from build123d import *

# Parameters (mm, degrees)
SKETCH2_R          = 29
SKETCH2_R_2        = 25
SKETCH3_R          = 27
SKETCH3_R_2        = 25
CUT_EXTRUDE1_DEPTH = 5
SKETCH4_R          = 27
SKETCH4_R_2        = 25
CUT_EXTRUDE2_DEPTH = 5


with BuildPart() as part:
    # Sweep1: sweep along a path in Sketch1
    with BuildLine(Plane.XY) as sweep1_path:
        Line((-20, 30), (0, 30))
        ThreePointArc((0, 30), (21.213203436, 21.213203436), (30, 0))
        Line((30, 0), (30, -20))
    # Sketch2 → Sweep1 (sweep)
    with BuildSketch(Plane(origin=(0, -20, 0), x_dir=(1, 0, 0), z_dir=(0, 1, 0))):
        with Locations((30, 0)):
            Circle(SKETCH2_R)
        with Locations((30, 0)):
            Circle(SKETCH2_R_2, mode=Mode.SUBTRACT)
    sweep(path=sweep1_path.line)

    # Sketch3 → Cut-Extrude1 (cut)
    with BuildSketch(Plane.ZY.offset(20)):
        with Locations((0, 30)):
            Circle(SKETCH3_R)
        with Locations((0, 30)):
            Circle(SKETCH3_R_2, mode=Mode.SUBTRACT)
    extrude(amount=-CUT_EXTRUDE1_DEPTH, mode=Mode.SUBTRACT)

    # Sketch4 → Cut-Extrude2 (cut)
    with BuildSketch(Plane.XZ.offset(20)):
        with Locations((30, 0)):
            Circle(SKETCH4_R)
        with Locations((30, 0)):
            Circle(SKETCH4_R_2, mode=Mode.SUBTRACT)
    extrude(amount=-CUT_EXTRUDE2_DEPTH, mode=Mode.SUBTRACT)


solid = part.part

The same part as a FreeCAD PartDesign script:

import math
import FreeCAD as App
import Part
import Sketcher

V = App.Vector
Q = App.Units.Quantity

doc = App.newDocument("Part")
body = doc.addObject("PartDesign::Body", "Body")

sketch1 = doc.addObject("Sketcher::SketchObject", "Sketch")
body.addObject(sketch1)
sketch1.AttachmentSupport = (doc.XZ_Plane, [""])
sketch1.MapMode = "FlatFace"
sketch1.AttachmentOffset = App.Placement(V(0, 0, 20), App.Rotation())
sketch1.addGeometry(Part.Circle(V(30, 0, 0), V(0, 0, 1), 29), False)
sketch1.addGeometry(Part.Circle(V(30, 0, 0), V(0, 0, 1), 25), False)
sketch1.addConstraint(Sketcher.Constraint("Coincident", 1, 3, 0, 3))
sketch1.addConstraint(Sketcher.Constraint("PointOnObject", 0, 3, -1))
sketch1.addConstraint(Sketcher.Constraint("Diameter", 0, Q("58 mm")))
sketch1.addConstraint(Sketcher.Constraint("Diameter", 1, Q("50 mm")))
sketch1.addConstraint(Sketcher.Constraint("DistanceX", -1, 1, 0, 3, Q("30 mm")))

sketch2 = doc.addObject("Sketcher::SketchObject", "Sketch001")
body.addObject(sketch2)
sketch2.AttachmentSupport = (doc.XY_Plane, [""])
sketch2.MapMode = "FlatFace"
sketch2.addGeometry(Part.LineSegment(V(-20, 30, 0), V(0, 30, 0)), False)
sketch2.addGeometry(Part.ArcOfCircle(Part.Circle(V(0, 0, 0), V(0, 0, 1), 30), math.radians(0), math.radians(90)), False)
sketch2.addGeometry(Part.LineSegment(V(30, 0, 0), V(30, -20, 0)), False)
sketch2.addConstraint(Sketcher.Constraint("Tangent", 0, 2, 1, 2))
sketch2.addConstraint(Sketcher.Constraint("Tangent", 1, 1, 2, 1))
sketch2.addConstraint(Sketcher.Constraint("Horizontal", 0))
sketch2.addConstraint(Sketcher.Constraint("Vertical", 2))
sketch2.addConstraint(Sketcher.Constraint("Coincident", 1, 3, -1, 1))
sketch2.addConstraint(Sketcher.Constraint("Equal", 0, 2))
sketch2.addConstraint(Sketcher.Constraint("Radius", 1, Q("30 mm")))
sketch2.addConstraint(Sketcher.Constraint("DistanceX", 0, 1, 0, 2, Q("20 mm")))
doc.recompute()

additivepipe = doc.addObject("PartDesign::AdditivePipe", "AdditivePipe")
body.addObject(additivepipe)
additivepipe.Profile = sketch1
additivepipe.Spine = (sketch2, ["Edge1", "Edge2", "Edge3"])

sketch3 = doc.addObject("Sketcher::SketchObject", "Sketch002")
body.addObject(sketch3)
sketch3.AttachmentSupport = (doc.YZ_Plane, [""])
sketch3.MapMode = "FlatFace"
sketch3.AttachmentOffset = App.Placement(V(0, 0, -20), App.Rotation())
sketch3.addGeometry(Part.Circle(V(30, 0, 0), V(0, 0, 1), 27), False)
sketch3.addGeometry(Part.Circle(V(30, 0, 0), V(0, 0, 1), 25), False)
sketch3.addConstraint(Sketcher.Constraint("Coincident", 1, 3, 0, 3))
sketch3.addConstraint(Sketcher.Constraint("PointOnObject", 0, 3, -1))
sketch3.addConstraint(Sketcher.Constraint("Diameter", 0, Q("54 mm")))
sketch3.addConstraint(Sketcher.Constraint("Diameter", 1, Q("50 mm")))
sketch3.addConstraint(Sketcher.Constraint("DistanceX", -1, 1, 0, 3, Q("30 mm")))
pocket1 = doc.addObject("PartDesign::Pocket", "Pocket")
body.addObject(pocket1)
pocket1.Profile = sketch3
pocket1.Length = 5
pocket1.Reversed = True

sketch4 = doc.addObject("Sketcher::SketchObject", "Sketch003")
body.addObject(sketch4)
sketch4.AttachmentSupport = (doc.XZ_Plane, [""])
sketch4.MapMode = "FlatFace"
sketch4.AttachmentOffset = App.Placement(V(0, 0, 20), App.Rotation())
sketch4.addGeometry(Part.Circle(V(30, 0, 0), V(0, 0, 1), 27), False)
sketch4.addGeometry(Part.Circle(V(30, 0, 0), V(0, 0, 1), 25), False)
sketch4.addConstraint(Sketcher.Constraint("Coincident", 1, 3, 0, 3))
sketch4.addConstraint(Sketcher.Constraint("PointOnObject", 0, 3, -1))
sketch4.addConstraint(Sketcher.Constraint("Diameter", 0, Q("54 mm")))
sketch4.addConstraint(Sketcher.Constraint("Diameter", 1, Q("50 mm")))
sketch4.addConstraint(Sketcher.Constraint("DistanceX", -1, 1, 0, 3, Q("30 mm")))
pocket2 = doc.addObject("PartDesign::Pocket", "Pocket001")
body.addObject(pocket2)
pocket2.Profile = sketch4
pocket2.Length = 5

doc.recompute()
